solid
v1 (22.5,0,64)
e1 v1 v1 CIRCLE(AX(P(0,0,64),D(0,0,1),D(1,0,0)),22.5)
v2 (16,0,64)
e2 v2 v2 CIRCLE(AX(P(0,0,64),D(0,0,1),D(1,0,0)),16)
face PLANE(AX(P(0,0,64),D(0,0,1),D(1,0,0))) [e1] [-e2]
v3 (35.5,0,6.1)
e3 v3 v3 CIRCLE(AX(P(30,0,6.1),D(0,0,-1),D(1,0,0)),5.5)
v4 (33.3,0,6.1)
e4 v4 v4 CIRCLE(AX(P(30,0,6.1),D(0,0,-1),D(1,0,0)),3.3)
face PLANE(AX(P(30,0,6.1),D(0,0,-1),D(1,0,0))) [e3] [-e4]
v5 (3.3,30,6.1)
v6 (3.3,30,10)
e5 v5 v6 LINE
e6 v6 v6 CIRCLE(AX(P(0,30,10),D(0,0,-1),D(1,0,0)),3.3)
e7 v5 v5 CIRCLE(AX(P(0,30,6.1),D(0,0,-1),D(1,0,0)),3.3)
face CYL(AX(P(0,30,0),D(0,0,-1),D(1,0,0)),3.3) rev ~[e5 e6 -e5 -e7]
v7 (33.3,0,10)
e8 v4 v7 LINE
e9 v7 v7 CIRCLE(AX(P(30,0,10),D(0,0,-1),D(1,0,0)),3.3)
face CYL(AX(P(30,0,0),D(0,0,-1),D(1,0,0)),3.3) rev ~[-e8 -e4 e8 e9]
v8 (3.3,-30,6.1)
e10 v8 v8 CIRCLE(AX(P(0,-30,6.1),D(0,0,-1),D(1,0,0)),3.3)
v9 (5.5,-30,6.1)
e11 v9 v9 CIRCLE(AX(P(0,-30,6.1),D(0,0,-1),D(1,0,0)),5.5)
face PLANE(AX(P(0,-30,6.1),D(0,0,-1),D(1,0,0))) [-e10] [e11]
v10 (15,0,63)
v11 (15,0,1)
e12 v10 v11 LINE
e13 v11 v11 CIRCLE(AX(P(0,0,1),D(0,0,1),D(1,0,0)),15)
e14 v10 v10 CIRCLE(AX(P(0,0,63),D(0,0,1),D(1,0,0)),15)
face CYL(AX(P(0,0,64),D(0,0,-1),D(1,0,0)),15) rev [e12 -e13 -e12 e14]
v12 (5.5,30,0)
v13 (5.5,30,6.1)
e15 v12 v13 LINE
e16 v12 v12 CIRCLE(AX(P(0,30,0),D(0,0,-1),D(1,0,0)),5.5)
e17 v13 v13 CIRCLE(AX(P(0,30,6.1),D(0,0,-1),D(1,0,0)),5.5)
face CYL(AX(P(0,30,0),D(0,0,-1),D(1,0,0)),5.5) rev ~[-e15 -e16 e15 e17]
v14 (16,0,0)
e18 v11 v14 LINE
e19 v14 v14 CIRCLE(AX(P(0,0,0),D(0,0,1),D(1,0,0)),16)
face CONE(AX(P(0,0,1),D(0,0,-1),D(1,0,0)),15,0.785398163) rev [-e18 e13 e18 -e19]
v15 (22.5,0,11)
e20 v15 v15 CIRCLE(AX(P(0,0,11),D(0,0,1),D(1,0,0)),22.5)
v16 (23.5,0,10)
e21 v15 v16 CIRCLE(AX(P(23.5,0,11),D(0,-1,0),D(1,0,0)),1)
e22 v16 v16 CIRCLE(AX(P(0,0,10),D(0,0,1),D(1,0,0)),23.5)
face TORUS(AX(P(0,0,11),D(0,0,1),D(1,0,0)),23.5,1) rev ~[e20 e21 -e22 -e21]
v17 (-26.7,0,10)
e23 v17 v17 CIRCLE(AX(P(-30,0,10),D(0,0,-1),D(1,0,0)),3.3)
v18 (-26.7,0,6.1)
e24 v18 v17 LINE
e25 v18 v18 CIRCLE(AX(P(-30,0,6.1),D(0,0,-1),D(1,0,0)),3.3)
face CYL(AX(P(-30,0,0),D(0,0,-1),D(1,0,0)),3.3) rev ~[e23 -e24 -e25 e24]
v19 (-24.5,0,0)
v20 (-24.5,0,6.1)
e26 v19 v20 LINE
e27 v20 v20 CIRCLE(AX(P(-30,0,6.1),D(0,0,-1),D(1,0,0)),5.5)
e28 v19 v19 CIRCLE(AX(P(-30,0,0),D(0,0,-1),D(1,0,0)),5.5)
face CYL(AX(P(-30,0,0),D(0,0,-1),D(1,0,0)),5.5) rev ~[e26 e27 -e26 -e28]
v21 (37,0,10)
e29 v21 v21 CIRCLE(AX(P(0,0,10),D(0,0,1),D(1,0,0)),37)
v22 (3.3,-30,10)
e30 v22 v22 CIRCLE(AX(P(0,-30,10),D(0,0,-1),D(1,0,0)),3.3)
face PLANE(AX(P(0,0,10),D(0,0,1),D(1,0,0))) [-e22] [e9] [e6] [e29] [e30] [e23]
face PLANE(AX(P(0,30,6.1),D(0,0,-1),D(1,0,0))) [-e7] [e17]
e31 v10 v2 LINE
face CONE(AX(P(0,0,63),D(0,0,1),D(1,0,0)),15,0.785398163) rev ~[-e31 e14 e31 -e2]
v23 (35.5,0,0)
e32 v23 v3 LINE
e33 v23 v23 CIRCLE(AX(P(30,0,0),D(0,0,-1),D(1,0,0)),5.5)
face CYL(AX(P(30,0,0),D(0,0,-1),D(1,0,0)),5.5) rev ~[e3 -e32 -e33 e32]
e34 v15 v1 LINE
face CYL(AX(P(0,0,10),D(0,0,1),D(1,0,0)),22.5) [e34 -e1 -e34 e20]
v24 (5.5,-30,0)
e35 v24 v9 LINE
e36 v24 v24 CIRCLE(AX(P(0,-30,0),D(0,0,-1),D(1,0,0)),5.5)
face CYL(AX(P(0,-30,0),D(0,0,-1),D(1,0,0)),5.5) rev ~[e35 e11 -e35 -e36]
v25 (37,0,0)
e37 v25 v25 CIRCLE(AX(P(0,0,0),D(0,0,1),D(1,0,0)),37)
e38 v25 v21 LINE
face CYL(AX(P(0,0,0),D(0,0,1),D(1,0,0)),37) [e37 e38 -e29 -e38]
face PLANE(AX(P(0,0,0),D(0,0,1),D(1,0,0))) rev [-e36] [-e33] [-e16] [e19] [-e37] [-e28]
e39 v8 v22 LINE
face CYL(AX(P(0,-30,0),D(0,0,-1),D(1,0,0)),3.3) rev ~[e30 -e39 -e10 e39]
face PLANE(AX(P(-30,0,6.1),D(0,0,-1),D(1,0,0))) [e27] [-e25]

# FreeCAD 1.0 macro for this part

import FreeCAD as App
import Part
import Sketcher

V = App.Vector
Q = App.Units.Quantity


def edges_at(feature, points):
    """Names of the edges that pass closest to the given points."""
    edges = feature.Shape.Edges
    near = lambda p: min(range(len(edges)), key=lambda i: edges[i].distToShape(Part.Vertex(*p))[0])
    return sorted({f"Edge{near(p) + 1}" for p in points})

doc = App.newDocument("Part")
params = doc.addObject("Spreadsheet::Sheet", "Params")
for row, (alias, value) in enumerate([
    ("sketch1_width", "22 mm"),
    ("sketch1_height", "64 mm"),
    ("sketch1_height2", "10 mm"),
    ("sketch1_width2", "14.5 mm"),
    ("revolution_angle", "360 deg"),
    ("sketch2_diameter", "6.6 mm"),
    ("sketch3_diameter", "11 mm"),
    ("pocket2_length", "6.1 mm"),
    ("fillet_radius", "1 mm"),
    ("chamfer_size", "1 mm"),
    ("chamfer_size2", "1 mm"),
    ("chamfer2_size", "1 mm"),
], start=1):
    params.set(f"A{row}", alias)
    params.set(f"B{row}", "=" + value)
    params.setAlias(f"B{row}", alias)

body = doc.addObject("PartDesign::Body", "Body")

# Sketch on XZ plane
sketch1 = body.newObject("Sketcher::SketchObject", "Sketch")
sketch1.AttachmentSupport = (doc.getObject("XZ_Plane"), [""])
sketch1.MapMode = "FlatFace"
sketch1.addGeometry(Part.LineSegment(V(15, 64, 0), V(15, 0, 0)), False)
sketch1.addGeometry(Part.LineSegment(V(15, 0, 0), V(37, 0, 0)), False)
sketch1.addGeometry(Part.LineSegment(V(37, 0, 0), V(37, 10, 0)), False)
sketch1.addGeometry(Part.LineSegment(V(37, 10, 0), V(22, 10, 0)), False)
sketch1.addGeometry(Part.LineSegment(V(22, 10, 0), V(22, 64, 0)), False)
sketch1.addGeometry(Part.LineSegment(V(22, 64, 0), V(15, 64, 0)), False)
sketch1.addConstraint(Sketcher.Constraint("Coincident", 0, 2, 1, 1))
sketch1.addConstraint(Sketcher.Constraint("Coincident", 1, 2, 2, 1))
sketch1.addConstraint(Sketcher.Constraint("Coincident", 2, 2, 3, 1))
sketch1.addConstraint(Sketcher.Constraint("Coincident", 3, 2, 4, 1))
sketch1.addConstraint(Sketcher.Constraint("Coincident", 4, 2, 5, 1))
sketch1.addConstraint(Sketcher.Constraint("Coincident", 5, 2, 0, 1))
sketch1.addConstraint(Sketcher.Constraint("Vertical", 0))
sketch1.addConstraint(Sketcher.Constraint("Horizontal", 1))
sketch1.addConstraint(Sketcher.Constraint("Vertical", 2))
sketch1.addConstraint(Sketcher.Constraint("Horizontal", 3))
sketch1.addConstraint(Sketcher.Constraint("Vertical", 4))
sketch1.addConstraint(Sketcher.Constraint("Horizontal", 5))
sketch1.addConstraint(Sketcher.Constraint("PointOnObject", 0, 2, -1))
sketch1.addConstraint(Sketcher.Constraint("DistanceX", 1, 1, 1, 2, Q("22 mm")))
sketch1.addConstraint(Sketcher.Constraint("DistanceY", 0, 2, 0, 1, Q("64 mm")))
sketch1.addConstraint(Sketcher.Constraint("DistanceY", 2, 1, 2, 2, Q("10 mm")))
sketch1.addConstraint(Sketcher.Constraint("DistanceX", 3, 2, 3, 1, Q("14.5 mm")))
sketch1.addConstraint(Sketcher.Constraint("DistanceX", -1, 1, 0, 2, Q("15 mm")))
sketch1.setExpression("Constraints[13]", "Params.sketch1_width")
sketch1.setExpression("Constraints[14]", "Params.sketch1_height")
sketch1.setExpression("Constraints[15]", "Params.sketch1_height2")
sketch1.setExpression("Constraints[16]", "Params.sketch1_width2")
revolution = body.newObject("PartDesign::Revolution", "Revolution")
revolution.Profile = sketch1
revolution.ReferenceAxis = (sketch1, ["V_Axis"])
revolution.setExpression("Angle", "Params.revolution_angle")

# Sketch on XY plane
sketch2 = body.newObject("Sketcher::SketchObject", "Sketch001")
sketch2.AttachmentSupport = (doc.getObject("XY_Plane"), [""])
sketch2.MapMode = "FlatFace"
sketch2.addGeometry(Part.Circle(V(0, -30, 0), V(0, 0, 1), 3.3), False)
sketch2.addGeometry(Part.Circle(V(-30, 0, 0), V(0, 0, 1), 3.3), False)
sketch2.addGeometry(Part.Circle(V(0, 30, 0), V(0, 0, 1), 3.3), False)
sketch2.addGeometry(Part.Circle(V(30, 0, 0), V(0, 0, 1), 3.3), False)
sketch2.addConstraint(Sketcher.Constraint("Equal", 0, 1))
sketch2.addConstraint(Sketcher.Constraint("Equal", 1, 2))
sketch2.addConstraint(Sketcher.Constraint("Equal", 2, 3))
sketch2.addConstraint(Sketcher.Constraint("Symmetric", 0, 3, 2, 3, -1, 1))
sketch2.addConstraint(Sketcher.Constraint("Symmetric", 1, 3, 3, 3, -1, 1))
sketch2.addConstraint(Sketcher.Constraint("PointOnObject", 0, 3, -2))
sketch2.addConstraint(Sketcher.Constraint("PointOnObject", 1, 3, -1))
sketch2.addConstraint(Sketcher.Constraint("Diameter", 0, Q("6.6 mm")))
sketch2.addConstraint(Sketcher.Constraint("DistanceY", 0, 3, -1, 1, Q("30 mm")))
sketch2.addConstraint(Sketcher.Constraint("DistanceX", 1, 3, -1, 1, Q("30 mm")))
sketch2.setExpression("Constraints[7]", "Params.sketch2_diameter")
pocket1 = body.newObject("PartDesign::Pocket", "Pocket")
pocket1.Profile = sketch2
pocket1.Type = "ThroughAll"
pocket1.Reversed = True

# Sketch on XY plane
sketch3 = body.newObject("Sketcher::SketchObject", "Sketch002")
sketch3.AttachmentSupport = (doc.getObject("XY_Plane"), [""])
sketch3.MapMode = "FlatFace"
sketch3.addGeometry(Part.Circle(V(0, -30, 0), V(0, 0, 1), 6), False)
sketch3.addGeometry(Part.Circle(V(30, 0, 0), V(0, 0, 1), 6), False)
sketch3.addGeometry(Part.Circle(V(-30, 0, 0), V(0, 0, 1), 6), False)
sketch3.addGeometry(Part.Circle(V(0, 30, 0), V(0, 0, 1), 6), False)
sketch3.addConstraint(Sketcher.Constraint("Equal", 0, 1))
sketch3.addConstraint(Sketcher.Constraint("Equal", 1, 2))
sketch3.addConstraint(Sketcher.Constraint("Equal", 2, 3))
sketch3.addConstraint(Sketcher.Constraint("Symmetric", 1, 3, 2, 3, -1, 1))
sketch3.addConstraint(Sketcher.Constraint("Symmetric", 0, 3, 3, 3, -1, 1))
sketch3.addConstraint(Sketcher.Constraint("PointOnObject", 0, 3, -2))
sketch3.addConstraint(Sketcher.Constraint("PointOnObject", 1, 3, -1))
sketch3.addConstraint(Sketcher.Constraint("Diameter", 0, Q("11 mm")))
sketch3.addConstraint(Sketcher.Constraint("DistanceY", 0, 3, -1, 1, Q("30 mm")))
sketch3.addConstraint(Sketcher.Constraint("DistanceX", -1, 1, 1, 3, Q("30 mm")))
sketch3.setExpression("Constraints[7]", "Params.sketch3_diameter")
pocket2 = body.newObject("PartDesign::Pocket", "Pocket001")
pocket2.Profile = sketch3
pocket2.setExpression("Length", "Params.pocket2_length")
pocket2.Reversed = True
doc.recompute()

fillet = body.newObject("PartDesign::Fillet", "Fillet")
fillet.Base = (pocket2, edges_at(pocket2, [(-22.5, 0, 10)]))
fillet.setExpression("Radius", "Params.fillet_radius")
doc.recompute()

chamfer = body.newObject("PartDesign::Chamfer", "Chamfer")
chamfer.Base = (fillet, edges_at(fillet, [(-15, 0, 0)]))
chamfer.ChamferType = "Two distances"
chamfer.setExpression("Size", "Params.chamfer_size")
chamfer.setExpression("Size2", "Params.chamfer_size2")
doc.recompute()

chamfer2 = body.newObject("PartDesign::Chamfer", "Chamfer001")
chamfer2.Base = (chamfer, edges_at(chamfer, [(-15, 0, 64)]))
chamfer2.setExpression("Size", "Params.chamfer2_size")

doc.recompute()
